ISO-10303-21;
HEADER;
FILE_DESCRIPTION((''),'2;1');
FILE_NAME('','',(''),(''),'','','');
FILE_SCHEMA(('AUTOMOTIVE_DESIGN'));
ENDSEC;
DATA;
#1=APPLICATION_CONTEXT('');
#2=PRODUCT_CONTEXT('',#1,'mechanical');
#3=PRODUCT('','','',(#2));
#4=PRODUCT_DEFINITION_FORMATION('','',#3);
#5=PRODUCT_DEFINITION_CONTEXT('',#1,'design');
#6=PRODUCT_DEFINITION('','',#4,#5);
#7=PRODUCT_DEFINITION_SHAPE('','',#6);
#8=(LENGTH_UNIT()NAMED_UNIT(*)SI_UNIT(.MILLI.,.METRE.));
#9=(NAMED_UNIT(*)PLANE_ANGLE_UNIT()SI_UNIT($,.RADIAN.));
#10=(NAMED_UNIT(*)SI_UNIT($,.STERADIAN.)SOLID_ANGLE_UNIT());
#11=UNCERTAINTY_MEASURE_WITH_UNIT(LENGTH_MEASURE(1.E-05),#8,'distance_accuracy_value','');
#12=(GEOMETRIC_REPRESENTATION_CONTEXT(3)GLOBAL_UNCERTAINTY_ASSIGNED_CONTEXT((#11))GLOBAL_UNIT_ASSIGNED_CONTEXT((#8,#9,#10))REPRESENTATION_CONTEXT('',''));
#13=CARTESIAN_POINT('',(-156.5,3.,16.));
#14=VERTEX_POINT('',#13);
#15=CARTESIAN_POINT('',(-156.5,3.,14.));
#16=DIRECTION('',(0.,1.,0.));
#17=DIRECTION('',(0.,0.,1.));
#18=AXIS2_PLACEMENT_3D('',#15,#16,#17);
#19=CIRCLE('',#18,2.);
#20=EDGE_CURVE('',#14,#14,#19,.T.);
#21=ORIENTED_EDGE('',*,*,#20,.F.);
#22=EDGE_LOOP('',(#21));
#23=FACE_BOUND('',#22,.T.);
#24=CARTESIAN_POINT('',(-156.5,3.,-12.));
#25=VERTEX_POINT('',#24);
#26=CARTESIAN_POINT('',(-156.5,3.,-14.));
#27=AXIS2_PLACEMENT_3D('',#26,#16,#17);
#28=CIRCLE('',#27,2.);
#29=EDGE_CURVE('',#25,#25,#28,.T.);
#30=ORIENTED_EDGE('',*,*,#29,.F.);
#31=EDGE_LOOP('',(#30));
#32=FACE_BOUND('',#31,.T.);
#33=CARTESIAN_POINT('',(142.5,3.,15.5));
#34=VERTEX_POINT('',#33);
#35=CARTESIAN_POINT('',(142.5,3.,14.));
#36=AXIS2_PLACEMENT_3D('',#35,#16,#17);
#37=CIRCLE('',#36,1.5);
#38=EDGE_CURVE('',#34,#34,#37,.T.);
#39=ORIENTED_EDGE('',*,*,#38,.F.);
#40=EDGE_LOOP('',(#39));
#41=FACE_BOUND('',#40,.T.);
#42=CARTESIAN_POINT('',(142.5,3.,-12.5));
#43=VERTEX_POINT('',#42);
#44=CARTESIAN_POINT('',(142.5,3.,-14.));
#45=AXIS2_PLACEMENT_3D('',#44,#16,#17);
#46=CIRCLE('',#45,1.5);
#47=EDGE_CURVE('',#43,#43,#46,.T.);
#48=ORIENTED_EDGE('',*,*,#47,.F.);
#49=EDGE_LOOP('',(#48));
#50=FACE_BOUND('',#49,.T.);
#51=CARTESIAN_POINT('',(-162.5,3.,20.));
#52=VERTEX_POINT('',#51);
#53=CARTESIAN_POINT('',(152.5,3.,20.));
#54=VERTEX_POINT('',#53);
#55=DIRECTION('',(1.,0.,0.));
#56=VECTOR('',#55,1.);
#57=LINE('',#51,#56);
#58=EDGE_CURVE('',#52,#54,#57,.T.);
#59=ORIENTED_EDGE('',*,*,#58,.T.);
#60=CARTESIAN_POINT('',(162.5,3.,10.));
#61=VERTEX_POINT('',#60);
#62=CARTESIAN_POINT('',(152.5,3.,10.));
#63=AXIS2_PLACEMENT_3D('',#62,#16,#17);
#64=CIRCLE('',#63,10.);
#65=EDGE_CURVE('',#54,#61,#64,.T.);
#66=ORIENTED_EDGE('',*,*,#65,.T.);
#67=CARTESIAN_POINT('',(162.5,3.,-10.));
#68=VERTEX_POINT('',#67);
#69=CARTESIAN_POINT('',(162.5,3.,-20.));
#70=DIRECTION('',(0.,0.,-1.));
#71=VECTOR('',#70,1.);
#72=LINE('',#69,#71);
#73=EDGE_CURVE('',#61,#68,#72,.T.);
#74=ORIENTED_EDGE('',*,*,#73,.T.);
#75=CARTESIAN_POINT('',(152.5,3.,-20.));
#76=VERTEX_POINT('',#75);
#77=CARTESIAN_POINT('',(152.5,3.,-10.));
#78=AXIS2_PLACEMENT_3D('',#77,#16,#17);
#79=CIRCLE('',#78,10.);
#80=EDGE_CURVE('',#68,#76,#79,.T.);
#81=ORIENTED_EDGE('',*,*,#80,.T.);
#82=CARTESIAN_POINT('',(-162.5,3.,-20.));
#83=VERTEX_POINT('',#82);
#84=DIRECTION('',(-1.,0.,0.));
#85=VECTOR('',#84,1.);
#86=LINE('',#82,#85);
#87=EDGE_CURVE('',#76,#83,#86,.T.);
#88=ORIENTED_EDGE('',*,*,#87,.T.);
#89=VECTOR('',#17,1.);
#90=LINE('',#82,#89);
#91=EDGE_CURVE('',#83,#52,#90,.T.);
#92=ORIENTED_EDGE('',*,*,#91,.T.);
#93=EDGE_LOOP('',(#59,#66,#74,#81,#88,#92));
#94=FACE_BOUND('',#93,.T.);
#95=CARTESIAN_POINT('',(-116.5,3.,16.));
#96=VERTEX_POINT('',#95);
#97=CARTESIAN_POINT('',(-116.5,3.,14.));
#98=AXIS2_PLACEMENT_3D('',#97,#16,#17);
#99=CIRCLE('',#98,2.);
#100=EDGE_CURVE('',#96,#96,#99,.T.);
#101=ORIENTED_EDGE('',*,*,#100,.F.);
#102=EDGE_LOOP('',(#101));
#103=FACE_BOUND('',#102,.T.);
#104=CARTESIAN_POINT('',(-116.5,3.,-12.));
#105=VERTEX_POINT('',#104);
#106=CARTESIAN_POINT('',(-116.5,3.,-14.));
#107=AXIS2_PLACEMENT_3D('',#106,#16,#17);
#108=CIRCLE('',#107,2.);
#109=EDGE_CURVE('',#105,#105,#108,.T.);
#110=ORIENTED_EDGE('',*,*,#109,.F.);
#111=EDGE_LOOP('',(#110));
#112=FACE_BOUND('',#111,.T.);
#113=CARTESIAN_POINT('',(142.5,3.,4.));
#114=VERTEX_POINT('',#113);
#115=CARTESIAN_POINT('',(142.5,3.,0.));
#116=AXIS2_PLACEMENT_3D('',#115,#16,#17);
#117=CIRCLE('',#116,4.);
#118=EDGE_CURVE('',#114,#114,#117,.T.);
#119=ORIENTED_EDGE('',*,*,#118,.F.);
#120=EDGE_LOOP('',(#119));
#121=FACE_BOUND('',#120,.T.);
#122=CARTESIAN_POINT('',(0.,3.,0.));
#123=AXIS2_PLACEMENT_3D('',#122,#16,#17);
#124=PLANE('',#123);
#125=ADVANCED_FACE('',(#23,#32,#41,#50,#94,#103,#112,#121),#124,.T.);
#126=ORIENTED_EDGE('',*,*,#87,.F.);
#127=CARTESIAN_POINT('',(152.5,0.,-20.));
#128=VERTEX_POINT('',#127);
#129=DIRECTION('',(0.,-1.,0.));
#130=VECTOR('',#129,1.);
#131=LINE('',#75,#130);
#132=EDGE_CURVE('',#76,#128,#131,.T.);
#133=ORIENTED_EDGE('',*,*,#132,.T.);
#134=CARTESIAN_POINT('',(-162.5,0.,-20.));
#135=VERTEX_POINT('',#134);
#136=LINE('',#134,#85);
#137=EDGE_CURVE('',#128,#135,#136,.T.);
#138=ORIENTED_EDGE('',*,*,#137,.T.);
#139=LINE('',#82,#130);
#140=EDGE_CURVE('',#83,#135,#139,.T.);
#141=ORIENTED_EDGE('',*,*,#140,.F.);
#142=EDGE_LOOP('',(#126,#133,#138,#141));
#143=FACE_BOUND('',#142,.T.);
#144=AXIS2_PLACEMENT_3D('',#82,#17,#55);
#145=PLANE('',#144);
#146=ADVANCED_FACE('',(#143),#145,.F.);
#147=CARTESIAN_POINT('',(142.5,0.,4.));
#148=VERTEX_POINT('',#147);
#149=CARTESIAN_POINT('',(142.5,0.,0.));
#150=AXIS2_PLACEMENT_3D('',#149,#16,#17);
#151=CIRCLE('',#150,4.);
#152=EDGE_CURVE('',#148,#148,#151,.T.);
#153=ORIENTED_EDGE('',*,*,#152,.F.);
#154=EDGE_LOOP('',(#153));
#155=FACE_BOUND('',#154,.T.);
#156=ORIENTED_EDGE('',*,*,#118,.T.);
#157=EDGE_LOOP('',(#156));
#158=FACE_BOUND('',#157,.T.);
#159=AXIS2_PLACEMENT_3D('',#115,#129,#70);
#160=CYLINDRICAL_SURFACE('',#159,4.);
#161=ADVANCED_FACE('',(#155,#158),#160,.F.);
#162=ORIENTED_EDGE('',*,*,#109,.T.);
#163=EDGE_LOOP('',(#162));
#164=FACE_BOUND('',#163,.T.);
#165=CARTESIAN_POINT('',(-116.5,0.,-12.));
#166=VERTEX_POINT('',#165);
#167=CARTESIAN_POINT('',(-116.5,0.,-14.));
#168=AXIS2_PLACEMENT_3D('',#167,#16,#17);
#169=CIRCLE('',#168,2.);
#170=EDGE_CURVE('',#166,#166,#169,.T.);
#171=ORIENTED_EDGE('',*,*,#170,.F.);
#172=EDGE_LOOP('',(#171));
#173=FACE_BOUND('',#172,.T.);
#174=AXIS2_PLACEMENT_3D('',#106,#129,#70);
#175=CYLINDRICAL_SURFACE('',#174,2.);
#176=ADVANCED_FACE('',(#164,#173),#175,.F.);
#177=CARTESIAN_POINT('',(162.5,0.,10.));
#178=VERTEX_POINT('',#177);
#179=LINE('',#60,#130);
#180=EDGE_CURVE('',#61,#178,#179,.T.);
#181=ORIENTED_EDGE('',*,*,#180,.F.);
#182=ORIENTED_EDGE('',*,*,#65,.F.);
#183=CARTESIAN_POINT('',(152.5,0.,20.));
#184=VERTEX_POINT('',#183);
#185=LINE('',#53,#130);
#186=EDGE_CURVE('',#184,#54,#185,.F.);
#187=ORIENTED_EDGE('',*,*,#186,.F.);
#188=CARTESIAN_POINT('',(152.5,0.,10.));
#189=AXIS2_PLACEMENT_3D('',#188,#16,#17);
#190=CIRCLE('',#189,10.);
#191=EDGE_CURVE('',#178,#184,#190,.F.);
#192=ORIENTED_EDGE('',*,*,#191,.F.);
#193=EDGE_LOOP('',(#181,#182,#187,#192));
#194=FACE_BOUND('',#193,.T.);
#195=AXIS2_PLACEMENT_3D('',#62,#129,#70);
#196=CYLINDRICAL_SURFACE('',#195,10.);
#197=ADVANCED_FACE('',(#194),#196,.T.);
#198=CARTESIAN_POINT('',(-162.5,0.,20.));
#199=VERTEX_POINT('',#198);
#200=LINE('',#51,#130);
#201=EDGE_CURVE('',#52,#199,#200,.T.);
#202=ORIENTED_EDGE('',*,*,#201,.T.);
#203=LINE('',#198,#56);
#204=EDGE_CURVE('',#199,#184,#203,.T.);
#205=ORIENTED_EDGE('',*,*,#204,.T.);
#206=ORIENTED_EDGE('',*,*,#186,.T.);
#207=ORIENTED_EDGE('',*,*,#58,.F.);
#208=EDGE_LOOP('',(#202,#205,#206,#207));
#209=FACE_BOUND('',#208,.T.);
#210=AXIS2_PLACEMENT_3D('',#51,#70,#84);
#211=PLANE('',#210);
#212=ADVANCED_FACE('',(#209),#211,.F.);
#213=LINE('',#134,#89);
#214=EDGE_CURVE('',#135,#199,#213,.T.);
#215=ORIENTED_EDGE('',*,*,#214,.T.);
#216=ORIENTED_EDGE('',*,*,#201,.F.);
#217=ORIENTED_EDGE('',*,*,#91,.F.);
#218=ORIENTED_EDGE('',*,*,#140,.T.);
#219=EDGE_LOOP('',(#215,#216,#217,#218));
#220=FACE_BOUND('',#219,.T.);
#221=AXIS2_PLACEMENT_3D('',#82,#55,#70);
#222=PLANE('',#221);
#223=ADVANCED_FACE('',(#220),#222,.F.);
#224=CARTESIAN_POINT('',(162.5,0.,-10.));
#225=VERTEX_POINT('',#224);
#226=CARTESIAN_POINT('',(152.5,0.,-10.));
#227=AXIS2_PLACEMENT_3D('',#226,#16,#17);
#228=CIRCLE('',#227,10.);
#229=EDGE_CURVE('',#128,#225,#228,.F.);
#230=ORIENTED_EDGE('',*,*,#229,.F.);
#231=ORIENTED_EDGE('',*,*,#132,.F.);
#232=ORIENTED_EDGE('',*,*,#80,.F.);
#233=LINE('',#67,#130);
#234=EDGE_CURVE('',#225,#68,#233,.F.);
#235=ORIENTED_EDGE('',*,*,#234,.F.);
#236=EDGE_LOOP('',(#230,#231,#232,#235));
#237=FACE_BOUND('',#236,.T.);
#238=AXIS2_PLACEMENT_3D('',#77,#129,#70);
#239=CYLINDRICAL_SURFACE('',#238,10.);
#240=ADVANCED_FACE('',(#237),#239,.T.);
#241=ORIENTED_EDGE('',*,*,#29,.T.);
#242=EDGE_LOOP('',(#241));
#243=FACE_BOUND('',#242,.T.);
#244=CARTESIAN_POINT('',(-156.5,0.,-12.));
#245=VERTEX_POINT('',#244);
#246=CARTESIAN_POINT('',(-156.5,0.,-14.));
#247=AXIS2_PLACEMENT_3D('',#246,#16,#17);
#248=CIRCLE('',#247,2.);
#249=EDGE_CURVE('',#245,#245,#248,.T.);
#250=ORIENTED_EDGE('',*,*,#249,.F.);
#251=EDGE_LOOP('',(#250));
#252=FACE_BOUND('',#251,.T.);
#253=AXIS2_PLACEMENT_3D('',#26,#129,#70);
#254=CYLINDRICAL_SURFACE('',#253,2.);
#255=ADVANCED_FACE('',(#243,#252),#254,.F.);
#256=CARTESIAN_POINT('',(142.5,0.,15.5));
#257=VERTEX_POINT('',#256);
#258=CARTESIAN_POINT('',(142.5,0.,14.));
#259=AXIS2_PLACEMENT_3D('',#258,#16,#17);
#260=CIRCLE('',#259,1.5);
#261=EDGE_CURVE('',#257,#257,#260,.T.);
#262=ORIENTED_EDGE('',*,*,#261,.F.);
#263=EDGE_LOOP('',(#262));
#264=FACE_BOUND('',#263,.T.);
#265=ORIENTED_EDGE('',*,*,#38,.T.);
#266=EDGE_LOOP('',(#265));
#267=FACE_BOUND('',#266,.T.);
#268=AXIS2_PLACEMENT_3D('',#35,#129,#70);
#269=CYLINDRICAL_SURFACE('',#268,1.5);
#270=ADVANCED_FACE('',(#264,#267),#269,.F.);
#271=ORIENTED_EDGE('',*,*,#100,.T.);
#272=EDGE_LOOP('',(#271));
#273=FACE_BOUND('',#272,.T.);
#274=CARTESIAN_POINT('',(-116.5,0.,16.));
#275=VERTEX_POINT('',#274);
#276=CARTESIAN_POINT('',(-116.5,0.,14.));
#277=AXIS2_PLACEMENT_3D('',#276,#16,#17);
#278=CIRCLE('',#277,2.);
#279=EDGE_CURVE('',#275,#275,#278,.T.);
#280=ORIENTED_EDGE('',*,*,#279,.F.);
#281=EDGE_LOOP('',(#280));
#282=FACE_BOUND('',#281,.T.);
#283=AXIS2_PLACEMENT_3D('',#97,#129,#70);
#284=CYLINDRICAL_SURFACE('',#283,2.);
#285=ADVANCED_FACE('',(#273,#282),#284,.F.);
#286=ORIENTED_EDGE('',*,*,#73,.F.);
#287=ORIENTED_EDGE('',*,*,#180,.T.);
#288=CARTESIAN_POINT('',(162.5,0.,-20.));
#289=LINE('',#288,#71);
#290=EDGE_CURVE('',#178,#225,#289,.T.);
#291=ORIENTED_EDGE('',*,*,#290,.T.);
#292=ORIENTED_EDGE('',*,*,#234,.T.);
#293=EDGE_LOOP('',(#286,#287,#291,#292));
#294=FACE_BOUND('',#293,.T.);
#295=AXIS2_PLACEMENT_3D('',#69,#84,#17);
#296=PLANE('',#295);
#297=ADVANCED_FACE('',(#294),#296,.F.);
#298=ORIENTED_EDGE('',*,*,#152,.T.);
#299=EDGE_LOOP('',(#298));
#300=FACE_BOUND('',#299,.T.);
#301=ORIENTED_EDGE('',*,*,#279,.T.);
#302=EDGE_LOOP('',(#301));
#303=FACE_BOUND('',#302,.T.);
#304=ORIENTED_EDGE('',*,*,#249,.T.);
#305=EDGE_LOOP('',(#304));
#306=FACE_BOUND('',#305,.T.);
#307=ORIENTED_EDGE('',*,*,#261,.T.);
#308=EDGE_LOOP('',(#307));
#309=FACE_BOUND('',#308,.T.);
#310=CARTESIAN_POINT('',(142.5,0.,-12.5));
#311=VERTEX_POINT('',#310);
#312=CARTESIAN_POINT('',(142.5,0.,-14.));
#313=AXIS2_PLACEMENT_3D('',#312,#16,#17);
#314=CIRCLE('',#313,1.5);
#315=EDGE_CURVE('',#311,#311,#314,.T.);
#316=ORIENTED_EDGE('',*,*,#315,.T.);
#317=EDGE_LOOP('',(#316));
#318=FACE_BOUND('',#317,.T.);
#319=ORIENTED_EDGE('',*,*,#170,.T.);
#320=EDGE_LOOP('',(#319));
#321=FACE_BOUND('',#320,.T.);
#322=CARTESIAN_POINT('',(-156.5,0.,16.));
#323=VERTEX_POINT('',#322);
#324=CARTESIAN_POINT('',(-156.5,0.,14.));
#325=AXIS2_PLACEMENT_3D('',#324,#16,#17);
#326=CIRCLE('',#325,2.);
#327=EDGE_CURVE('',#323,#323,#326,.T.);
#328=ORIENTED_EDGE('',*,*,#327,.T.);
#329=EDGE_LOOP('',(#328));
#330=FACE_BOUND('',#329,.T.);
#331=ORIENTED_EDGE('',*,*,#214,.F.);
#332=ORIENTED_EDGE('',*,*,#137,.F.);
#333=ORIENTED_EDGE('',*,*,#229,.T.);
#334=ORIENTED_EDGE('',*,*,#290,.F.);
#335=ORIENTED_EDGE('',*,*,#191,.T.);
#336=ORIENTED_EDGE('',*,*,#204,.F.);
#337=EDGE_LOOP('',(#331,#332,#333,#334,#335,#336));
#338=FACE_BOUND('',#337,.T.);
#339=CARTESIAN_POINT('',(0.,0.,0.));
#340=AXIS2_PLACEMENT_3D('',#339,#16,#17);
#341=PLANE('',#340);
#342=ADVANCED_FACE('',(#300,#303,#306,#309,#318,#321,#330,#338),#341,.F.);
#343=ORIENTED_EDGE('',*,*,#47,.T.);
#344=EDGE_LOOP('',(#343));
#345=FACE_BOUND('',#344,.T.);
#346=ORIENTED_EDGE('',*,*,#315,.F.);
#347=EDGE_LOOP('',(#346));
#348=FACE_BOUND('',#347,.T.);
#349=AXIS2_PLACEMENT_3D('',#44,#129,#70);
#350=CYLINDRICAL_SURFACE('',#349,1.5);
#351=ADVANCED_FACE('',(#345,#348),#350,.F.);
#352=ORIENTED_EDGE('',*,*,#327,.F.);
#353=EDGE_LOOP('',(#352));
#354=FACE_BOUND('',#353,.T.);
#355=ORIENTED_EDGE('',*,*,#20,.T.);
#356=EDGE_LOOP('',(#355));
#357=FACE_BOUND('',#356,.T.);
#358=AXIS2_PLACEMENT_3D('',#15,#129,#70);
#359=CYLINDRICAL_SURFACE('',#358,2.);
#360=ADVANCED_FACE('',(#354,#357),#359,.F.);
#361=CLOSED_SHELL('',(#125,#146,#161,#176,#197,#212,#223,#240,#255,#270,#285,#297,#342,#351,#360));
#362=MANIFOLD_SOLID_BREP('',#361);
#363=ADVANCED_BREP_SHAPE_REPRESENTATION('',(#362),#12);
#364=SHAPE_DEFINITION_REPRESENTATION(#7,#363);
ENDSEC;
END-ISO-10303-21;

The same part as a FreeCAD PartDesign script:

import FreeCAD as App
import Part
import Sketcher

V = App.Vector


def edges_at(feature, points):
    """Names of the edges that pass closest to the given points."""
    edges = feature.Shape.Edges
    near = lambda p: min(range(len(edges)), key=lambda i: edges[i].distToShape(Part.Vertex(*p))[0])
    return sorted({f"Edge{near(p) + 1}" for p in points})


def add_polygon(sketch, points):
    """Adds a closed chain of lines whose ends are joined by coincident constraints."""
    first, n = sketch.GeometryCount, len(points)
    for a, b in zip(points, points[1:] + points[:1]):
        sketch.addGeometry(Part.LineSegment(App.Vector(*a, 0), App.Vector(*b, 0)), False)
    for i in range(n):
        sketch.addConstraint(Sketcher.Constraint("Coincident", first + i, 2, first + (i + 1) % n, 1))

doc = App.newDocument("Part")
body = doc.addObject("PartDesign::Body", "Body")

# Sketch on XZ plane
sketch1 = body.newObject("Sketcher::SketchObject", "Sketch")
sketch1.AttachmentSupport = (doc.getObject("XZ_Plane"), [""])
sketch1.MapMode = "FlatFace"
add_polygon(sketch1, [(-162.5, -20), (-162.5, 20), (162.5, 20), (162.5, -20)])  # lines 0-3
sketch1.addGeometry(Part.Circle(V(-156.5, 14, 0), V(0, 0, 1), 2), False)  # 4
sketch1.addGeometry(Part.Circle(V(-116.5, 14, 0), V(0, 0, 1), 2), False)  # 5
sketch1.addGeometry(Part.Circle(V(142.5, 14, 0), V(0, 0, 1), 1.5), False)  # 6
sketch1.addGeometry(Part.Circle(V(-156.5, -14, 0), V(0, 0, 1), 2), False)  # 7
sketch1.addGeometry(Part.Circle(V(-116.5, -14, 0), V(0, 0, 1), 2), False)  # 8
sketch1.addGeometry(Part.Circle(V(142.5, 0, 0), V(0, 0, 1), 4), False)  # 9
sketch1.addGeometry(Part.Circle(V(142.5, -14, 0), V(0, 0, 1), 1.5), False)  # 10
sketch1.addConstraint([
    Sketcher.Constraint("Vertical", 0),
    Sketcher.Constraint("Horizontal", 1),
    Sketcher.Constraint("Vertical", 2),
    Sketcher.Constraint("Horizontal", 3),
    Sketcher.Constraint("Equal", 4, 5),
    Sketcher.Constraint("Equal", 5, 7),
    Sketcher.Constraint("Equal", 7, 8),
    Sketcher.Constraint("Equal", 6, 10),
    Sketcher.Constraint("Symmetric", 0, 2, 2, 2, -1, 1),
    Sketcher.Constraint("Symmetric", 4, 3, 7, 3, -1),
    Sketcher.Constraint("Symmetric", 5, 3, 8, 3, -1),
    Sketcher.Constraint("Symmetric", 6, 3, 10, 3, -1),
    Sketcher.Constraint("PointOnObject", 9, 3, -1),
    Sketcher.Constraint("Horizontal", 4, 3, 5, 3),
    Sketcher.Constraint("Horizontal", 5, 3, 6, 3),
    Sketcher.Constraint("Vertical", 6, 3, 9, 3),
    Sketcher.Constraint("Diameter", 4, 4.0),
    Sketcher.Constraint("Diameter", 6, 3.0),
    Sketcher.Constraint("Diameter", 9, 8.0),
    Sketcher.Constraint("DistanceX", 1, 1, 1, 2, 325.0),
    Sketcher.Constraint("DistanceY", 0, 1, 0, 2, 40.0),
    Sketcher.Constraint("DistanceY", -1, 1, 4, 3, 14.0),
    Sketcher.Constraint("DistanceX", 4, 3, 5, 3, 40.0),
    Sketcher.Constraint("DistanceX", 5, 3, 6, 3, 259.0),
    Sketcher.Constraint("DistanceX", 0, 2, 4, 3, 6.0),
])
pad1 = body.newObject("PartDesign::Pad", "Pad")
pad1.Profile = sketch1
pad1.Length = 3
pad1.Reversed = True
doc.recompute()

fillet = body.newObject("PartDesign::Fillet", "Fillet")
fillet.Base = (pad1, edges_at(pad1, [(162.5, 1.5, 20), (162.5, 1.5, -20)]))
fillet.Radius = 10

doc.recompute()
